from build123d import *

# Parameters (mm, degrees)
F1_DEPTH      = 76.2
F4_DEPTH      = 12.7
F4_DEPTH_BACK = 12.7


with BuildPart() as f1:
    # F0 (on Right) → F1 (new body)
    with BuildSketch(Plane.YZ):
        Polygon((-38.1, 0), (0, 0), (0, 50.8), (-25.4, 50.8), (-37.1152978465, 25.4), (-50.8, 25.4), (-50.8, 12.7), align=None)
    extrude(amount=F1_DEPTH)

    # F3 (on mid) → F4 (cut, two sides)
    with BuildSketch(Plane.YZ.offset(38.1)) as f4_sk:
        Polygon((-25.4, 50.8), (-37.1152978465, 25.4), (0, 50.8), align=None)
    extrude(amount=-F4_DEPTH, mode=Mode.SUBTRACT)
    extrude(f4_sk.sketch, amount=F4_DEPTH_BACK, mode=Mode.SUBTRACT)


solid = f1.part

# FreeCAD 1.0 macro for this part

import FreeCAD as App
import Part
import Sketcher

V = App.Vector
Q = App.Units.Quantity

doc = App.newDocument("Part")
params = doc.addObject("Spreadsheet::Sheet", "Params")
for row, (alias, value) in enumerate([
    ("sketch1_width", "1 in"),
    ("sketch1_height", "2 in"),
    ("sketch1_width2", "1.5 in"),
    ("sketch1_height2", "0.5 in"),
    ("pad1_length", "3 in"),
    ("sketch2_width", "1 in"),
    ("pocket1_length", "0.5 in"),
    ("pocket1_length2", "0.5 in"),
], start=1):
    params.set(f"A{row}", alias)
    params.set(f"B{row}", "=" + value)
    params.setAlias(f"B{row}", alias)

body = doc.addObject("PartDesign::Body", "Body")

sketch1 = doc.addObject("Sketcher::SketchObject", "Sketch")
body.addObject(sketch1)
sketch1.AttachmentSupport = (doc.YZ_Plane, [""])
sketch1.MapMode = "FlatFace"
sketch1.addGeometry([
    Part.LineSegment(V(-38, 0, 0), V(0, 0, 0)),
    Part.LineSegment(V(0, 0, 0), V(0, 51, 0)),
    Part.LineSegment(V(0, 51, 0), V(-25, 51, 0)),
    Part.LineSegment(V(-25, 51, 0), V(-37, 25, 0)),
    Part.LineSegment(V(-37, 25, 0), V(-51, 25, 0)),
    Part.LineSegment(V(-51, 25, 0), V(-51, 13, 0)),
    Part.LineSegment(V(-51, 13, 0), V(-38, 0, 0)),
], False)
sketch1.addConstraint([
    Sketcher.Constraint("Coincident", 0, 2, 1, 1),
    Sketcher.Constraint("Coincident", 1, 2, 2, 1),
    Sketcher.Constraint("Coincident", 2, 2, 3, 1),
    Sketcher.Constraint("Coincident", 3, 2, 4, 1),
    Sketcher.Constraint("Coincident", 4, 2, 5, 1),
    Sketcher.Constraint("Coincident", 5, 2, 6, 1),
    Sketcher.Constraint("Coincident", 6, 2, 0, 1),
    Sketcher.Constraint("Horizontal", 0),
    Sketcher.Constraint("Vertical", 1),
    Sketcher.Constraint("Horizontal", 2),
    Sketcher.Constraint("Horizontal", 4),
    Sketcher.Constraint("Vertical", 5),
    Sketcher.Constraint("Coincident", 0, 2, -1, 1),
    Sketcher.Constraint("DistanceX", 2, 2, 2, 1, Q("1 in")),
    Sketcher.Constraint("DistanceY", 1, 1, 1, 2, Q("2 in")),
    Sketcher.Constraint("DistanceX", 0, 1, 0, 2, Q("1.5 in")),
    Sketcher.Constraint("DistanceY", 5, 2, 5, 1, Q("0.5 in")),
    Sketcher.Constraint("DistanceY", -1, 1, 3, 2, Q("1 in")),
    Sketcher.Constraint("DistanceX", 4, 2, -1, 1, Q("2 in")),
    Sketcher.Constraint("Distance", 3, 27.971561),
])
sketch1.setExpression("Constraints[13]", "Params.sketch1_width")
sketch1.setExpression("Constraints[14]", "Params.sketch1_height")
sketch1.setExpression("Constraints[15]", "Params.sketch1_width2")
sketch1.setExpression("Constraints[16]", "Params.sketch1_height2")
pad1 = doc.addObject("PartDesign::Pad", "Pad")
body.addObject(pad1)
pad1.Profile = sketch1
pad1.setExpression("Length", "Params.pad1_length")

sketch2 = doc.addObject("Sketcher::SketchObject", "Sketch001")
body.addObject(sketch2)
sketch2.AttachmentSupport = (doc.YZ_Plane, [""])
sketch2.MapMode = "FlatFace"
sketch2.AttachmentOffset = App.Placement(V(0, 0, 1.5 * 25.4), App.Rotation())
sketch2.addGeometry([
    Part.LineSegment(V(-25, 51, 0), V(-37, 25, 0)),
    Part.LineSegment(V(-37, 25, 0), V(0, 51, 0)),
    Part.LineSegment(V(0, 51, 0), V(-25, 51, 0)),
], False)
sketch2.addConstraint([
    Sketcher.Constraint("Coincident", 0, 2, 1, 1),
    Sketcher.Constraint("Coincident", 1, 2, 2, 1),
    Sketcher.Constraint("Coincident", 2, 2, 0, 1),
    Sketcher.Constraint("Horizontal", 2),
    Sketcher.Constraint("PointOnObject", 1, 2, -2),
    Sketcher.Constraint("DistanceX", 2, 2, 2, 1, Q("1 in")),
    Sketcher.Constraint("DistanceY", -1, 1, 0, 2, Q("1 in")),
    Sketcher.Constraint("DistanceY", -1, 1, 1, 2, Q("2 in")),
    Sketcher.Constraint("Distance", 0, 27.971561),
])
sketch2.setExpression("Constraints[5]", "Params.sketch2_width")
pocket1 = doc.addObject("PartDesign::Pocket", "Pocket")
body.addObject(pocket1)
pocket1.Profile = sketch2
pocket1.Type = "TwoLengths"
pocket1.setExpression("Length", "Params.pocket1_length")
pocket1.setExpression("Length2", "Params.pocket1_length2")

doc.recompute()
